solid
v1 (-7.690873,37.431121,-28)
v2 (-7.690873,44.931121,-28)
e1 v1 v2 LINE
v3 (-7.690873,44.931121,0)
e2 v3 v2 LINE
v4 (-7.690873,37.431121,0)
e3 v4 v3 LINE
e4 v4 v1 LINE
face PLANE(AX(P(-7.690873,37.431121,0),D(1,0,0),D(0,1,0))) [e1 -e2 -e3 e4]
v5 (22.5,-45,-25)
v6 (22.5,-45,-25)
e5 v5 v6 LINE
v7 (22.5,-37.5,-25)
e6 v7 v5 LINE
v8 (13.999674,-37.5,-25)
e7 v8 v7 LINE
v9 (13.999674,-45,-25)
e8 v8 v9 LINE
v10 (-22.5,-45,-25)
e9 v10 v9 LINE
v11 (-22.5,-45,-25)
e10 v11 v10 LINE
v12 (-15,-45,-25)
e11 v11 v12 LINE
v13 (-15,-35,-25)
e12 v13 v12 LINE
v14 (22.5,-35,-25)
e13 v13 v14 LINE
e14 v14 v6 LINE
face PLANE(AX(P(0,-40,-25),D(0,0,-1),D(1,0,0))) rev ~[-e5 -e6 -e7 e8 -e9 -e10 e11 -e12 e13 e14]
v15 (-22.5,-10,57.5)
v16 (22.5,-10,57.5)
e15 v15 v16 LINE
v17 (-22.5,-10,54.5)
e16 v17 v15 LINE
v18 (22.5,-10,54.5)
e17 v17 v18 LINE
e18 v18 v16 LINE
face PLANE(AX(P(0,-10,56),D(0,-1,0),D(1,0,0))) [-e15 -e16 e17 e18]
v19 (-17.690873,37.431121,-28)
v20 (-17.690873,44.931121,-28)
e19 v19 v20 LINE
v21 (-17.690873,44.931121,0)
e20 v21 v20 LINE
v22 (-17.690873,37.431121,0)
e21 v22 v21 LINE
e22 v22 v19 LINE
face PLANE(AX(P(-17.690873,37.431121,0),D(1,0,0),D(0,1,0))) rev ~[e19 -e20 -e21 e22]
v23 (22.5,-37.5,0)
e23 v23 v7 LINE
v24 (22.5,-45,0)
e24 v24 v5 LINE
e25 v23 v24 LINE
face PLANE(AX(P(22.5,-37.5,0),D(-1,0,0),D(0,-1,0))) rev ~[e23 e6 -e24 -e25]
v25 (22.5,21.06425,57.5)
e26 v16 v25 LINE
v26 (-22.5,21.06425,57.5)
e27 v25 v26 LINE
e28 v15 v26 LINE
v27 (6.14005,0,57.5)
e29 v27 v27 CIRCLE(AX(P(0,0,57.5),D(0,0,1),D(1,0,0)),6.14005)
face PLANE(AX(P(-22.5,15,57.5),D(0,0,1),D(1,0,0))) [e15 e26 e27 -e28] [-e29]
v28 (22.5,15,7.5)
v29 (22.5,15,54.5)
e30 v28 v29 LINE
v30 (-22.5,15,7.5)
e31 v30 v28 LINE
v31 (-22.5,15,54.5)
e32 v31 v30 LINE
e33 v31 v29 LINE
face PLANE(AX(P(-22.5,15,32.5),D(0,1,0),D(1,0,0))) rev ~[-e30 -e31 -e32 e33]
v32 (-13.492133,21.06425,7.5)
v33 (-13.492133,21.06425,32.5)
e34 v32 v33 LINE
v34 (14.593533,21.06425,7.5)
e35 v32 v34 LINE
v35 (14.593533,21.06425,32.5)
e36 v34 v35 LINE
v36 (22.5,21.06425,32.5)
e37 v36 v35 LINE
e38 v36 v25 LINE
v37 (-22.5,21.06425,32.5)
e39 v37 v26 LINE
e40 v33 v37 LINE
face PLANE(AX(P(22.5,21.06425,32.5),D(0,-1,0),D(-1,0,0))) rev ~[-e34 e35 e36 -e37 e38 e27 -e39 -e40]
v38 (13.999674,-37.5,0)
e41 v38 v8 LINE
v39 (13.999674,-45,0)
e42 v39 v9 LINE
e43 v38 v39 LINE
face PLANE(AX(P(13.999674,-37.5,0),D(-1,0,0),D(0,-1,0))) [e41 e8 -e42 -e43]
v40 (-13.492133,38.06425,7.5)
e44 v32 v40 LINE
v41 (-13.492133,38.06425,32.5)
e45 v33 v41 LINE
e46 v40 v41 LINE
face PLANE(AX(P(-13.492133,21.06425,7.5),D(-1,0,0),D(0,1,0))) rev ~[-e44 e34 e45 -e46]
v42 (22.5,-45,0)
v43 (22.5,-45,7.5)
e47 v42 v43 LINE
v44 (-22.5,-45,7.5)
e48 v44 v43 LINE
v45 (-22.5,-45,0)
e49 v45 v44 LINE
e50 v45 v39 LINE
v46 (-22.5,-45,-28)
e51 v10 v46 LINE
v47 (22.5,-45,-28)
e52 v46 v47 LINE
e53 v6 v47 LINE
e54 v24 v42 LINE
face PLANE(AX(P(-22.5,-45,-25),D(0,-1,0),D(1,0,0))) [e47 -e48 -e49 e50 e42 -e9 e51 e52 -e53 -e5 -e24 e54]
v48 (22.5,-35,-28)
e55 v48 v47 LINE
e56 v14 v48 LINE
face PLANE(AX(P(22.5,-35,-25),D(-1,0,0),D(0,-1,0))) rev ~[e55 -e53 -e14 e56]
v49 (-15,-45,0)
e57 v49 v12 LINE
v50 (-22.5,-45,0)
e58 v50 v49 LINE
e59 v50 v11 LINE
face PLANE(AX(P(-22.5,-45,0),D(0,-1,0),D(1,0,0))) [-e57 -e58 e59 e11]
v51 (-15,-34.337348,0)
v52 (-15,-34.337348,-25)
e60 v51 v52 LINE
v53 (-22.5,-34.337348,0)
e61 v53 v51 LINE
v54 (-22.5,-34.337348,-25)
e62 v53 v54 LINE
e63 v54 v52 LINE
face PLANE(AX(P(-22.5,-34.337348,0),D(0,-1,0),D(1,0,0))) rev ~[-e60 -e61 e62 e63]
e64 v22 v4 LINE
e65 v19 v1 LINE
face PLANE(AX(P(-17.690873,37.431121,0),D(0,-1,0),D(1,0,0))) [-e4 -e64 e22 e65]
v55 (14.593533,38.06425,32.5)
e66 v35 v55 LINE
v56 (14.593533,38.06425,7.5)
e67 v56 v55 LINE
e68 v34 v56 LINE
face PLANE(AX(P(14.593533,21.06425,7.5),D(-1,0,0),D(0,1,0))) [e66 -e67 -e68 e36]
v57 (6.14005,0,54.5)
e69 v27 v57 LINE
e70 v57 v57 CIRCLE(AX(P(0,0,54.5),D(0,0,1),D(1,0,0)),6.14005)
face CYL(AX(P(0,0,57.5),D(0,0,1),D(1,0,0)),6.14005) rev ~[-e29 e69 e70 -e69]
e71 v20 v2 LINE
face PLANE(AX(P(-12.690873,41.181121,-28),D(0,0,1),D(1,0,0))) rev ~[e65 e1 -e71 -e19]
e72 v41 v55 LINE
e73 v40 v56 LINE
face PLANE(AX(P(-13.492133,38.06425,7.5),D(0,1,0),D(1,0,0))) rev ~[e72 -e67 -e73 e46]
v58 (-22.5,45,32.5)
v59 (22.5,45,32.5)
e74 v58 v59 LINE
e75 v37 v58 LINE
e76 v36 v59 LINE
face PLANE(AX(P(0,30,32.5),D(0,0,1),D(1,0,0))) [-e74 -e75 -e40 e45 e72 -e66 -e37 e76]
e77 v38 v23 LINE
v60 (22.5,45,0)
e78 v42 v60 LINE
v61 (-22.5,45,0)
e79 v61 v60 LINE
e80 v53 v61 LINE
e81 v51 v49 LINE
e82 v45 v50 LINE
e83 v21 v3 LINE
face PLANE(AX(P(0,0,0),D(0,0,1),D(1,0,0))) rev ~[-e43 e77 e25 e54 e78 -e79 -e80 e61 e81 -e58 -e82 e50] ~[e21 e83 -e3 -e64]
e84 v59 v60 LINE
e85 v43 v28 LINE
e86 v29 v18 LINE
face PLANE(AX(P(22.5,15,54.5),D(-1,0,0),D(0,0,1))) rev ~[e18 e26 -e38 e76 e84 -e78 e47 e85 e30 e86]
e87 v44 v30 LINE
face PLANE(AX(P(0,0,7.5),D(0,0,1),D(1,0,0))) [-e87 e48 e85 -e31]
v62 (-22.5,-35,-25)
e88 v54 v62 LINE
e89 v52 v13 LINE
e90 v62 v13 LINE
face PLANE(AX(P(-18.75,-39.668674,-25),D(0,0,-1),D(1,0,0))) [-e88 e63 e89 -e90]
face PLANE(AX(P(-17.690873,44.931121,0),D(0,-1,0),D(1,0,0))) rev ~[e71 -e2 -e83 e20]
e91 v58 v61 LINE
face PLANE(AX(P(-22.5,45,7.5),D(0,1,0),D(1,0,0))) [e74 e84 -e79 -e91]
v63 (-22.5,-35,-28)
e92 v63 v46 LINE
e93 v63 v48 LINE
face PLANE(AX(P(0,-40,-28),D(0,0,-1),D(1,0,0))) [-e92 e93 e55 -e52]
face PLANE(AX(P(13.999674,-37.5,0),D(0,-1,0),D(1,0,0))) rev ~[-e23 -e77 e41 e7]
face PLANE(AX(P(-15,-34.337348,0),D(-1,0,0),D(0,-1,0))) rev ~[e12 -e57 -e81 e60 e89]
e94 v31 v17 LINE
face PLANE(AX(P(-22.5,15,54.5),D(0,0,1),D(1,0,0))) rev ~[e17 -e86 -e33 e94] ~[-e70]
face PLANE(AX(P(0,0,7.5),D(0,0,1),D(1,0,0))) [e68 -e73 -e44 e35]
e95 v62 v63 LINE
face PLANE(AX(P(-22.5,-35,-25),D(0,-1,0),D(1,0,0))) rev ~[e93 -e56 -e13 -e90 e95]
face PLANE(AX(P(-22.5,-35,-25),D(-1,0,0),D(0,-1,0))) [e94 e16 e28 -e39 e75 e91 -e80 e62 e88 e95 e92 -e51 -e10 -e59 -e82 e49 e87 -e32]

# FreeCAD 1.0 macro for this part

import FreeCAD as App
import Part
import Sketcher
from FreeCAD import Vector
Q = App.Units.Quantity

doc = App.newDocument("Part")
body = doc.addObject("PartDesign::Body", "Body")

# Sketch on XY plane
sketch1 = body.newObject("Sketcher::SketchObject", "Sketch")
sketch1.AttachmentSupport = (doc.getObject("XY_Plane"), [""])
sketch1.MapMode = "FlatFace"
sketch1.addGeometry([
    Part.LineSegment(Vector(-22, 45, 0), Vector(-22, -45, 0)),
    Part.LineSegment(Vector(-22, -45, 0), Vector(22, -45, 0)),
    Part.LineSegment(Vector(22, -45, 0), Vector(22, 45, 0)),
    Part.LineSegment(Vector(22, 45, 0), Vector(-22, 45, 0)),
], False)
sketch1.addConstraint([
    Sketcher.Constraint("Coincident", 0, 2, 1, 1),
    Sketcher.Constraint("Coincident", 1, 2, 2, 1),
    Sketcher.Constraint("Coincident", 2, 2, 3, 1),
    Sketcher.Constraint("Coincident", 3, 2, 0, 1),
    Sketcher.Constraint("Vertical", 0),
    Sketcher.Constraint("Horizontal", 1),
    Sketcher.Constraint("Vertical", 2),
    Sketcher.Constraint("Horizontal", 3),
    Sketcher.Constraint("Symmetric", 0, 2, 2, 2, -1, 1),
    Sketcher.Constraint("DistanceX", 1, 1, 1, 2, Q("45 mm")),
    Sketcher.Constraint("DistanceY", 0, 2, 0, 1, Q("90 mm")),
])
pad1 = body.newObject("PartDesign::Pad", "Pad")
pad1.Profile = sketch1
pad1.Length = 7.5

# Sketch on XY plane
sketch2 = body.newObject("Sketcher::SketchObject", "Sketch001")
sketch2.AttachmentSupport = (doc.getObject("XY_Plane"), [""])
sketch2.MapMode = "FlatFace"
sketch2.AttachmentOffset = App.Placement(Vector(0, 0, 7.5), App.Rotation())
sketch2.addGeometry([
    Part.LineSegment(Vector(-22, 45, 0), Vector(-22, 15, 0)),  # 0
    Part.LineSegment(Vector(-22, 15, 0), Vector(22, 15, 0)),  # 1
    Part.LineSegment(Vector(22, 15, 0), Vector(22, 45, 0)),  # 2
    Part.LineSegment(Vector(22, 45, 0), Vector(-22, 45, 0)),  # 3
    Part.LineSegment(Vector(15, 21, 0), Vector(-13, 21, 0)),  # 4
    Part.LineSegment(Vector(-13, 21, 0), Vector(-13, 38, 0)),  # 5
    Part.LineSegment(Vector(-13, 38, 0), Vector(15, 38, 0)),  # 6
    Part.LineSegment(Vector(15, 38, 0), Vector(15, 21, 0)),  # 7
], False)
sketch2.addConstraint([
    Sketcher.Constraint("Coincident", 0, 2, 1, 1),
    Sketcher.Constraint("Coincident", 1, 2, 2, 1),
    Sketcher.Constraint("Coincident", 2, 2, 3, 1),
    Sketcher.Constraint("Coincident", 3, 2, 0, 1),
    Sketcher.Constraint("Coincident", 4, 2, 5, 1),
    Sketcher.Constraint("Coincident", 5, 2, 6, 1),
    Sketcher.Constraint("Coincident", 6, 2, 7, 1),
    Sketcher.Constraint("Coincident", 7, 2, 4, 1),
    Sketcher.Constraint("Vertical", 0),
    Sketcher.Constraint("Horizontal", 1),
    Sketcher.Constraint("Vertical", 2),
    Sketcher.Constraint("Horizontal", 3),
    Sketcher.Constraint("Horizontal", 4),
    Sketcher.Constraint("Vertical", 5),
    Sketcher.Constraint("Horizontal", 6),
    Sketcher.Constraint("Vertical", 7),
    Sketcher.Constraint("DistanceX", 1, 1, 1, 2, Q("45 mm")),
    Sketcher.Constraint("DistanceY", 0, 2, 0, 1, Q("30 mm")),
    Sketcher.Constraint("DistanceY", 5, 1, 5, 2, Q("17 mm")),
    Sketcher.Constraint("DistanceY", -1, 1, 0, 2, Q("15 mm")),
    Sketcher.Constraint("DistanceX", 0, 2, -1, 1, Q("22.5 mm")),
    Sketcher.Constraint("DistanceX", 4, 2, 4, 1, Q("28.085665 mm")),
    Sketcher.Constraint("DistanceY", -1, 1, 4, 2, Q("21.06425 mm")),
    Sketcher.Constraint("DistanceX", 4, 2, -1, 1, Q("13.492133 mm")),
])
pad2 = body.newObject("PartDesign::Pad", "Pad001")
pad2.Profile = sketch2
pad2.Length = 25

# Sketch on XY plane
sketch3 = body.newObject("Sketcher::SketchObject", "Sketch002")
sketch3.AttachmentSupport = (doc.getObject("XY_Plane"), [""])
sketch3.MapMode = "FlatFace"
sketch3.AttachmentOffset = App.Placement(Vector(0, 0, 32.5), App.Rotation())
sketch3.addGeometry([
    Part.LineSegment(Vector(-22, 15, 0), Vector(22, 15, 0)),
    Part.LineSegment(Vector(22, 15, 0), Vector(22, 21, 0)),
    Part.LineSegment(Vector(22, 21, 0), Vector(-22, 21, 0)),
    Part.LineSegment(Vector(-22, 21, 0), Vector(-22, 15, 0)),
], False)
sketch3.addConstraint([
    Sketcher.Constraint("Coincident", 0, 2, 1, 1),
    Sketcher.Constraint("Coincident", 1, 2, 2, 1),
    Sketcher.Constraint("Coincident", 2, 2, 3, 1),
    Sketcher.Constraint("Coincident", 3, 2, 0, 1),
    Sketcher.Constraint("Horizontal", 0),
    Sketcher.Constraint("Vertical", 1),
    Sketcher.Constraint("Horizontal", 2),
    Sketcher.Constraint("Vertical", 3),
    Sketcher.Constraint("DistanceX", 0, 1, 0, 2, Q("45 mm")),
    Sketcher.Constraint("DistanceY", -1, 1, 0, 2, Q("15 mm")),
    Sketcher.Constraint("DistanceX", -1, 1, 0, 2, Q("22.5 mm")),
    Sketcher.Constraint("DistanceY", 1, 1, 1, 2, Q("6.06425 mm")),
])
pad3 = body.newObject("PartDesign::Pad", "Pad002")
pad3.Profile = sketch3
pad3.Length = 25

# Sketch on XZ plane
sketch4 = body.newObject("Sketcher::SketchObject", "Sketch003")
sketch4.AttachmentSupport = (doc.getObject("XZ_Plane"), [""])
sketch4.MapMode = "FlatFace"
sketch4.AttachmentOffset = App.Placement(Vector(0, 0, -15), App.Rotation())
sketch4.addGeometry([
    Part.LineSegment(Vector(-22.5, 57.5, 0), Vector(-22.5, 54.5, 0)),
    Part.LineSegment(Vector(-22.5, 54.5, 0), Vector(22.5, 54.5, 0)),
    Part.LineSegment(Vector(22.5, 54.5, 0), Vector(22.5, 57.5, 0)),
    Part.LineSegment(Vector(22.5, 57.5, 0), Vector(-22.5, 57.5, 0)),
], False)
sketch4.addConstraint([
    Sketcher.Constraint("Coincident", 0, 2, 1, 1),
    Sketcher.Constraint("Coincident", 1, 2, 2, 1),
    Sketcher.Constraint("Coincident", 2, 2, 3, 1),
    Sketcher.Constraint("Coincident", 3, 2, 0, 1),
    Sketcher.Constraint("Vertical", 0),
    Sketcher.Constraint("Horizontal", 1),
    Sketcher.Constraint("Vertical", 2),
    Sketcher.Constraint("Horizontal", 3),
    Sketcher.Constraint("DistanceX", 1, 1, 1, 2, Q("45 mm")),
    Sketcher.Constraint("DistanceY", 0, 2, 0, 1, Q("3 mm")),
    Sketcher.Constraint("DistanceX", 0, 2, -1, 1, Q("22.5 mm")),
    Sketcher.Constraint("DistanceY", -1, 1, 0, 2, Q("54.5 mm")),
])
pad4 = body.newObject("PartDesign::Pad", "Pad003")
pad4.Profile = sketch4
pad4.Length = 25

# Sketch on XY plane
sketch5 = body.newObject("Sketcher::SketchObject", "Sketch004")
sketch5.AttachmentSupport = (doc.getObject("XY_Plane"), [""])
sketch5.MapMode = "FlatFace"
sketch5.AttachmentOffset = App.Placement(Vector(0, 0, 57.5), App.Rotation())
sketch5.addGeometry(Part.Circle(Vector(0, 0, 0), Vector(0, 0, 1), 6), False)
sketch5.addConstraint([
    Sketcher.Constraint("Coincident", 0, 3, -1, 1),
    Sketcher.Constraint("Diameter", 0, Q("12.2801 mm")),
])
pocket1 = body.newObject("PartDesign::Pocket", "Pocket")
pocket1.Profile = sketch5
pocket1.Length = 3

# Sketch on XY plane
sketch6 = body.newObject("Sketcher::SketchObject", "Sketch005")
sketch6.AttachmentSupport = (doc.getObject("XY_Plane"), [""])
sketch6.MapMode = "FlatFace"
sketch6.addGeometry([
    Part.LineSegment(Vector(14, -45, 0), Vector(14, -38, 0)),
    Part.LineSegment(Vector(14, -38, 0), Vector(22, -38, 0)),
    Part.LineSegment(Vector(22, -38, 0), Vector(22, -45, 0)),
    Part.LineSegment(Vector(22, -45, 0), Vector(14, -45, 0)),
], False)
sketch6.addConstraint([
    Sketcher.Constraint("Coincident", 0, 2, 1, 1),
    Sketcher.Constraint("Coincident", 1, 2, 2, 1),
    Sketcher.Constraint("Coincident", 2, 2, 3, 1),
    Sketcher.Constraint("Coincident", 3, 2, 0, 1),
    Sketcher.Constraint("Vertical", 0),
    Sketcher.Constraint("Horizontal", 1),
    Sketcher.Constraint("Vertical", 2),
    Sketcher.Constraint("Horizontal", 3),
    Sketcher.Constraint("DistanceY", 0, 1, 0, 2, Q("7.5 mm")),
    Sketcher.Constraint("DistanceY", 2, 2, -1, 1, Q("45 mm")),
    Sketcher.Constraint("DistanceX", -1, 1, 1, 2, Q("22.5 mm")),
    Sketcher.Constraint("DistanceX", 1, 1, 1, 2, Q("8.500325 mm")),
])
pad5 = body.newObject("PartDesign::Pad", "Pad004")
pad5.Profile = sketch6
pad5.Length = 25
pad5.Reversed = True

# Sketch on XY plane
sketch7 = body.newObject("Sketcher::SketchObject", "Sketch006")
sketch7.AttachmentSupport = (doc.getObject("XY_Plane"), [""])
sketch7.MapMode = "FlatFace"
sketch7.addGeometry([
    Part.LineSegment(Vector(-22, -45, 0), Vector(-22, -34, 0)),
    Part.LineSegment(Vector(-22, -34, 0), Vector(-15, -34, 0)),
    Part.LineSegment(Vector(-15, -34, 0), Vector(-15, -45, 0)),
    Part.LineSegment(Vector(-15, -45, 0), Vector(-22, -45, 0)),
], False)
sketch7.addConstraint([
    Sketcher.Constraint("Coincident", 0, 2, 1, 1),
    Sketcher.Constraint("Coincident", 1, 2, 2, 1),
    Sketcher.Constraint("Coincident", 2, 2, 3, 1),
    Sketcher.Constraint("Coincident", 3, 2, 0, 1),
    Sketcher.Constraint("Vertical", 0),
    Sketcher.Constraint("Horizontal", 1),
    Sketcher.Constraint("Vertical", 2),
    Sketcher.Constraint("Horizontal", 3),
    Sketcher.Constraint("DistanceX", 1, 1, 1, 2, Q("7.5 mm")),
    Sketcher.Constraint("DistanceX", 1, 2, -1, 1, Q("15 mm")),
    Sketcher.Constraint("DistanceY", 2, 2, -1, 1, Q("45 mm")),
    Sketcher.Constraint("DistanceY", 0, 1, 0, 2, Q("10.662651 mm")),
])
pad6 = body.newObject("PartDesign::Pad", "Pad005")
pad6.Profile = sketch7
pad6.Length = 25
pad6.Reversed = True

# Sketch on XY plane
sketch8 = body.newObject("Sketcher::SketchObject", "Sketch007")
sketch8.AttachmentSupport = (doc.getObject("XY_Plane"), [""])
sketch8.MapMode = "FlatFace"
sketch8.addGeometry([
    Part.LineSegment(Vector(-18, 45, 0), Vector(-18, 37, 0)),
    Part.LineSegment(Vector(-18, 37, 0), Vector(-8, 37, 0)),
    Part.LineSegment(Vector(-8, 37, 0), Vector(-8, 45, 0)),
    Part.LineSegment(Vector(-8, 45, 0), Vector(-18, 45, 0)),
], False)
sketch8.addConstraint([
    Sketcher.Constraint("Coincident", 0, 2, 1, 1),
    Sketcher.Constraint("Coincident", 1, 2, 2, 1),
    Sketcher.Constraint("Coincident", 2, 2, 3, 1),
    Sketcher.Constraint("Coincident", 3, 2, 0, 1),
    Sketcher.Constraint("Vertical", 0),
    Sketcher.Constraint("Horizontal", 1),
    Sketcher.Constraint("Vertical", 2),
    Sketcher.Constraint("Horizontal", 3),
    Sketcher.Constraint("DistanceX", 1, 1, 1, 2, Q("10 mm")),
    Sketcher.Constraint("DistanceY", 0, 2, 0, 1, Q("7.5 mm")),
    Sketcher.Constraint("DistanceY", -1, 1, 0, 2, Q("37.431121 mm")),
    Sketcher.Constraint("DistanceX", 0, 2, -1, 1, Q("17.690873 mm")),
])
pad7 = body.newObject("PartDesign::Pad", "Pad006")
pad7.Profile = sketch8
pad7.Length = 28
pad7.Reversed = True

# Sketch on XY plane
sketch9 = body.newObject("Sketcher::SketchObject", "Sketch008")
sketch9.AttachmentSupport = (doc.getObject("XY_Plane"), [""])
sketch9.MapMode = "FlatFace"
sketch9.AttachmentOffset = App.Placement(Vector(0, 0, -25), App.Rotation())
sketch9.addGeometry([
    Part.LineSegment(Vector(-22, -45, 0), Vector(-22, -35, 0)),
    Part.LineSegment(Vector(-22, -35, 0), Vector(22, -35, 0)),
    Part.LineSegment(Vector(22, -35, 0), Vector(22, -45, 0)),
    Part.LineSegment(Vector(22, -45, 0), Vector(-22, -45, 0)),
], False)
sketch9.addConstraint([
    Sketcher.Constraint("Coincident", 0, 2, 1, 1),
    Sketcher.Constraint("Coincident", 1, 2, 2, 1),
    Sketcher.Constraint("Coincident", 2, 2, 3, 1),
    Sketcher.Constraint("Coincident", 3, 2, 0, 1),
    Sketcher.Constraint("Vertical", 0),
    Sketcher.Constraint("Horizontal", 1),
    Sketcher.Constraint("Vertical", 2),
    Sketcher.Constraint("Horizontal", 3),
    Sketcher.Constraint("DistanceX", 1, 1, 1, 2, Q("45 mm")),
    Sketcher.Constraint("DistanceY", 0, 1, 0, 2, Q("10 mm")),
    Sketcher.Constraint("DistanceY", 0, 2, -1, 1, Q("35 mm")),
    Sketcher.Constraint("DistanceX", 0, 2, -1, 1, Q("22.5 mm")),
])
pad8 = body.newObject("PartDesign::Pad", "Pad007")
pad8.Profile = sketch9
pad8.Length = 3
pad8.Reversed = True

doc.recompute()
